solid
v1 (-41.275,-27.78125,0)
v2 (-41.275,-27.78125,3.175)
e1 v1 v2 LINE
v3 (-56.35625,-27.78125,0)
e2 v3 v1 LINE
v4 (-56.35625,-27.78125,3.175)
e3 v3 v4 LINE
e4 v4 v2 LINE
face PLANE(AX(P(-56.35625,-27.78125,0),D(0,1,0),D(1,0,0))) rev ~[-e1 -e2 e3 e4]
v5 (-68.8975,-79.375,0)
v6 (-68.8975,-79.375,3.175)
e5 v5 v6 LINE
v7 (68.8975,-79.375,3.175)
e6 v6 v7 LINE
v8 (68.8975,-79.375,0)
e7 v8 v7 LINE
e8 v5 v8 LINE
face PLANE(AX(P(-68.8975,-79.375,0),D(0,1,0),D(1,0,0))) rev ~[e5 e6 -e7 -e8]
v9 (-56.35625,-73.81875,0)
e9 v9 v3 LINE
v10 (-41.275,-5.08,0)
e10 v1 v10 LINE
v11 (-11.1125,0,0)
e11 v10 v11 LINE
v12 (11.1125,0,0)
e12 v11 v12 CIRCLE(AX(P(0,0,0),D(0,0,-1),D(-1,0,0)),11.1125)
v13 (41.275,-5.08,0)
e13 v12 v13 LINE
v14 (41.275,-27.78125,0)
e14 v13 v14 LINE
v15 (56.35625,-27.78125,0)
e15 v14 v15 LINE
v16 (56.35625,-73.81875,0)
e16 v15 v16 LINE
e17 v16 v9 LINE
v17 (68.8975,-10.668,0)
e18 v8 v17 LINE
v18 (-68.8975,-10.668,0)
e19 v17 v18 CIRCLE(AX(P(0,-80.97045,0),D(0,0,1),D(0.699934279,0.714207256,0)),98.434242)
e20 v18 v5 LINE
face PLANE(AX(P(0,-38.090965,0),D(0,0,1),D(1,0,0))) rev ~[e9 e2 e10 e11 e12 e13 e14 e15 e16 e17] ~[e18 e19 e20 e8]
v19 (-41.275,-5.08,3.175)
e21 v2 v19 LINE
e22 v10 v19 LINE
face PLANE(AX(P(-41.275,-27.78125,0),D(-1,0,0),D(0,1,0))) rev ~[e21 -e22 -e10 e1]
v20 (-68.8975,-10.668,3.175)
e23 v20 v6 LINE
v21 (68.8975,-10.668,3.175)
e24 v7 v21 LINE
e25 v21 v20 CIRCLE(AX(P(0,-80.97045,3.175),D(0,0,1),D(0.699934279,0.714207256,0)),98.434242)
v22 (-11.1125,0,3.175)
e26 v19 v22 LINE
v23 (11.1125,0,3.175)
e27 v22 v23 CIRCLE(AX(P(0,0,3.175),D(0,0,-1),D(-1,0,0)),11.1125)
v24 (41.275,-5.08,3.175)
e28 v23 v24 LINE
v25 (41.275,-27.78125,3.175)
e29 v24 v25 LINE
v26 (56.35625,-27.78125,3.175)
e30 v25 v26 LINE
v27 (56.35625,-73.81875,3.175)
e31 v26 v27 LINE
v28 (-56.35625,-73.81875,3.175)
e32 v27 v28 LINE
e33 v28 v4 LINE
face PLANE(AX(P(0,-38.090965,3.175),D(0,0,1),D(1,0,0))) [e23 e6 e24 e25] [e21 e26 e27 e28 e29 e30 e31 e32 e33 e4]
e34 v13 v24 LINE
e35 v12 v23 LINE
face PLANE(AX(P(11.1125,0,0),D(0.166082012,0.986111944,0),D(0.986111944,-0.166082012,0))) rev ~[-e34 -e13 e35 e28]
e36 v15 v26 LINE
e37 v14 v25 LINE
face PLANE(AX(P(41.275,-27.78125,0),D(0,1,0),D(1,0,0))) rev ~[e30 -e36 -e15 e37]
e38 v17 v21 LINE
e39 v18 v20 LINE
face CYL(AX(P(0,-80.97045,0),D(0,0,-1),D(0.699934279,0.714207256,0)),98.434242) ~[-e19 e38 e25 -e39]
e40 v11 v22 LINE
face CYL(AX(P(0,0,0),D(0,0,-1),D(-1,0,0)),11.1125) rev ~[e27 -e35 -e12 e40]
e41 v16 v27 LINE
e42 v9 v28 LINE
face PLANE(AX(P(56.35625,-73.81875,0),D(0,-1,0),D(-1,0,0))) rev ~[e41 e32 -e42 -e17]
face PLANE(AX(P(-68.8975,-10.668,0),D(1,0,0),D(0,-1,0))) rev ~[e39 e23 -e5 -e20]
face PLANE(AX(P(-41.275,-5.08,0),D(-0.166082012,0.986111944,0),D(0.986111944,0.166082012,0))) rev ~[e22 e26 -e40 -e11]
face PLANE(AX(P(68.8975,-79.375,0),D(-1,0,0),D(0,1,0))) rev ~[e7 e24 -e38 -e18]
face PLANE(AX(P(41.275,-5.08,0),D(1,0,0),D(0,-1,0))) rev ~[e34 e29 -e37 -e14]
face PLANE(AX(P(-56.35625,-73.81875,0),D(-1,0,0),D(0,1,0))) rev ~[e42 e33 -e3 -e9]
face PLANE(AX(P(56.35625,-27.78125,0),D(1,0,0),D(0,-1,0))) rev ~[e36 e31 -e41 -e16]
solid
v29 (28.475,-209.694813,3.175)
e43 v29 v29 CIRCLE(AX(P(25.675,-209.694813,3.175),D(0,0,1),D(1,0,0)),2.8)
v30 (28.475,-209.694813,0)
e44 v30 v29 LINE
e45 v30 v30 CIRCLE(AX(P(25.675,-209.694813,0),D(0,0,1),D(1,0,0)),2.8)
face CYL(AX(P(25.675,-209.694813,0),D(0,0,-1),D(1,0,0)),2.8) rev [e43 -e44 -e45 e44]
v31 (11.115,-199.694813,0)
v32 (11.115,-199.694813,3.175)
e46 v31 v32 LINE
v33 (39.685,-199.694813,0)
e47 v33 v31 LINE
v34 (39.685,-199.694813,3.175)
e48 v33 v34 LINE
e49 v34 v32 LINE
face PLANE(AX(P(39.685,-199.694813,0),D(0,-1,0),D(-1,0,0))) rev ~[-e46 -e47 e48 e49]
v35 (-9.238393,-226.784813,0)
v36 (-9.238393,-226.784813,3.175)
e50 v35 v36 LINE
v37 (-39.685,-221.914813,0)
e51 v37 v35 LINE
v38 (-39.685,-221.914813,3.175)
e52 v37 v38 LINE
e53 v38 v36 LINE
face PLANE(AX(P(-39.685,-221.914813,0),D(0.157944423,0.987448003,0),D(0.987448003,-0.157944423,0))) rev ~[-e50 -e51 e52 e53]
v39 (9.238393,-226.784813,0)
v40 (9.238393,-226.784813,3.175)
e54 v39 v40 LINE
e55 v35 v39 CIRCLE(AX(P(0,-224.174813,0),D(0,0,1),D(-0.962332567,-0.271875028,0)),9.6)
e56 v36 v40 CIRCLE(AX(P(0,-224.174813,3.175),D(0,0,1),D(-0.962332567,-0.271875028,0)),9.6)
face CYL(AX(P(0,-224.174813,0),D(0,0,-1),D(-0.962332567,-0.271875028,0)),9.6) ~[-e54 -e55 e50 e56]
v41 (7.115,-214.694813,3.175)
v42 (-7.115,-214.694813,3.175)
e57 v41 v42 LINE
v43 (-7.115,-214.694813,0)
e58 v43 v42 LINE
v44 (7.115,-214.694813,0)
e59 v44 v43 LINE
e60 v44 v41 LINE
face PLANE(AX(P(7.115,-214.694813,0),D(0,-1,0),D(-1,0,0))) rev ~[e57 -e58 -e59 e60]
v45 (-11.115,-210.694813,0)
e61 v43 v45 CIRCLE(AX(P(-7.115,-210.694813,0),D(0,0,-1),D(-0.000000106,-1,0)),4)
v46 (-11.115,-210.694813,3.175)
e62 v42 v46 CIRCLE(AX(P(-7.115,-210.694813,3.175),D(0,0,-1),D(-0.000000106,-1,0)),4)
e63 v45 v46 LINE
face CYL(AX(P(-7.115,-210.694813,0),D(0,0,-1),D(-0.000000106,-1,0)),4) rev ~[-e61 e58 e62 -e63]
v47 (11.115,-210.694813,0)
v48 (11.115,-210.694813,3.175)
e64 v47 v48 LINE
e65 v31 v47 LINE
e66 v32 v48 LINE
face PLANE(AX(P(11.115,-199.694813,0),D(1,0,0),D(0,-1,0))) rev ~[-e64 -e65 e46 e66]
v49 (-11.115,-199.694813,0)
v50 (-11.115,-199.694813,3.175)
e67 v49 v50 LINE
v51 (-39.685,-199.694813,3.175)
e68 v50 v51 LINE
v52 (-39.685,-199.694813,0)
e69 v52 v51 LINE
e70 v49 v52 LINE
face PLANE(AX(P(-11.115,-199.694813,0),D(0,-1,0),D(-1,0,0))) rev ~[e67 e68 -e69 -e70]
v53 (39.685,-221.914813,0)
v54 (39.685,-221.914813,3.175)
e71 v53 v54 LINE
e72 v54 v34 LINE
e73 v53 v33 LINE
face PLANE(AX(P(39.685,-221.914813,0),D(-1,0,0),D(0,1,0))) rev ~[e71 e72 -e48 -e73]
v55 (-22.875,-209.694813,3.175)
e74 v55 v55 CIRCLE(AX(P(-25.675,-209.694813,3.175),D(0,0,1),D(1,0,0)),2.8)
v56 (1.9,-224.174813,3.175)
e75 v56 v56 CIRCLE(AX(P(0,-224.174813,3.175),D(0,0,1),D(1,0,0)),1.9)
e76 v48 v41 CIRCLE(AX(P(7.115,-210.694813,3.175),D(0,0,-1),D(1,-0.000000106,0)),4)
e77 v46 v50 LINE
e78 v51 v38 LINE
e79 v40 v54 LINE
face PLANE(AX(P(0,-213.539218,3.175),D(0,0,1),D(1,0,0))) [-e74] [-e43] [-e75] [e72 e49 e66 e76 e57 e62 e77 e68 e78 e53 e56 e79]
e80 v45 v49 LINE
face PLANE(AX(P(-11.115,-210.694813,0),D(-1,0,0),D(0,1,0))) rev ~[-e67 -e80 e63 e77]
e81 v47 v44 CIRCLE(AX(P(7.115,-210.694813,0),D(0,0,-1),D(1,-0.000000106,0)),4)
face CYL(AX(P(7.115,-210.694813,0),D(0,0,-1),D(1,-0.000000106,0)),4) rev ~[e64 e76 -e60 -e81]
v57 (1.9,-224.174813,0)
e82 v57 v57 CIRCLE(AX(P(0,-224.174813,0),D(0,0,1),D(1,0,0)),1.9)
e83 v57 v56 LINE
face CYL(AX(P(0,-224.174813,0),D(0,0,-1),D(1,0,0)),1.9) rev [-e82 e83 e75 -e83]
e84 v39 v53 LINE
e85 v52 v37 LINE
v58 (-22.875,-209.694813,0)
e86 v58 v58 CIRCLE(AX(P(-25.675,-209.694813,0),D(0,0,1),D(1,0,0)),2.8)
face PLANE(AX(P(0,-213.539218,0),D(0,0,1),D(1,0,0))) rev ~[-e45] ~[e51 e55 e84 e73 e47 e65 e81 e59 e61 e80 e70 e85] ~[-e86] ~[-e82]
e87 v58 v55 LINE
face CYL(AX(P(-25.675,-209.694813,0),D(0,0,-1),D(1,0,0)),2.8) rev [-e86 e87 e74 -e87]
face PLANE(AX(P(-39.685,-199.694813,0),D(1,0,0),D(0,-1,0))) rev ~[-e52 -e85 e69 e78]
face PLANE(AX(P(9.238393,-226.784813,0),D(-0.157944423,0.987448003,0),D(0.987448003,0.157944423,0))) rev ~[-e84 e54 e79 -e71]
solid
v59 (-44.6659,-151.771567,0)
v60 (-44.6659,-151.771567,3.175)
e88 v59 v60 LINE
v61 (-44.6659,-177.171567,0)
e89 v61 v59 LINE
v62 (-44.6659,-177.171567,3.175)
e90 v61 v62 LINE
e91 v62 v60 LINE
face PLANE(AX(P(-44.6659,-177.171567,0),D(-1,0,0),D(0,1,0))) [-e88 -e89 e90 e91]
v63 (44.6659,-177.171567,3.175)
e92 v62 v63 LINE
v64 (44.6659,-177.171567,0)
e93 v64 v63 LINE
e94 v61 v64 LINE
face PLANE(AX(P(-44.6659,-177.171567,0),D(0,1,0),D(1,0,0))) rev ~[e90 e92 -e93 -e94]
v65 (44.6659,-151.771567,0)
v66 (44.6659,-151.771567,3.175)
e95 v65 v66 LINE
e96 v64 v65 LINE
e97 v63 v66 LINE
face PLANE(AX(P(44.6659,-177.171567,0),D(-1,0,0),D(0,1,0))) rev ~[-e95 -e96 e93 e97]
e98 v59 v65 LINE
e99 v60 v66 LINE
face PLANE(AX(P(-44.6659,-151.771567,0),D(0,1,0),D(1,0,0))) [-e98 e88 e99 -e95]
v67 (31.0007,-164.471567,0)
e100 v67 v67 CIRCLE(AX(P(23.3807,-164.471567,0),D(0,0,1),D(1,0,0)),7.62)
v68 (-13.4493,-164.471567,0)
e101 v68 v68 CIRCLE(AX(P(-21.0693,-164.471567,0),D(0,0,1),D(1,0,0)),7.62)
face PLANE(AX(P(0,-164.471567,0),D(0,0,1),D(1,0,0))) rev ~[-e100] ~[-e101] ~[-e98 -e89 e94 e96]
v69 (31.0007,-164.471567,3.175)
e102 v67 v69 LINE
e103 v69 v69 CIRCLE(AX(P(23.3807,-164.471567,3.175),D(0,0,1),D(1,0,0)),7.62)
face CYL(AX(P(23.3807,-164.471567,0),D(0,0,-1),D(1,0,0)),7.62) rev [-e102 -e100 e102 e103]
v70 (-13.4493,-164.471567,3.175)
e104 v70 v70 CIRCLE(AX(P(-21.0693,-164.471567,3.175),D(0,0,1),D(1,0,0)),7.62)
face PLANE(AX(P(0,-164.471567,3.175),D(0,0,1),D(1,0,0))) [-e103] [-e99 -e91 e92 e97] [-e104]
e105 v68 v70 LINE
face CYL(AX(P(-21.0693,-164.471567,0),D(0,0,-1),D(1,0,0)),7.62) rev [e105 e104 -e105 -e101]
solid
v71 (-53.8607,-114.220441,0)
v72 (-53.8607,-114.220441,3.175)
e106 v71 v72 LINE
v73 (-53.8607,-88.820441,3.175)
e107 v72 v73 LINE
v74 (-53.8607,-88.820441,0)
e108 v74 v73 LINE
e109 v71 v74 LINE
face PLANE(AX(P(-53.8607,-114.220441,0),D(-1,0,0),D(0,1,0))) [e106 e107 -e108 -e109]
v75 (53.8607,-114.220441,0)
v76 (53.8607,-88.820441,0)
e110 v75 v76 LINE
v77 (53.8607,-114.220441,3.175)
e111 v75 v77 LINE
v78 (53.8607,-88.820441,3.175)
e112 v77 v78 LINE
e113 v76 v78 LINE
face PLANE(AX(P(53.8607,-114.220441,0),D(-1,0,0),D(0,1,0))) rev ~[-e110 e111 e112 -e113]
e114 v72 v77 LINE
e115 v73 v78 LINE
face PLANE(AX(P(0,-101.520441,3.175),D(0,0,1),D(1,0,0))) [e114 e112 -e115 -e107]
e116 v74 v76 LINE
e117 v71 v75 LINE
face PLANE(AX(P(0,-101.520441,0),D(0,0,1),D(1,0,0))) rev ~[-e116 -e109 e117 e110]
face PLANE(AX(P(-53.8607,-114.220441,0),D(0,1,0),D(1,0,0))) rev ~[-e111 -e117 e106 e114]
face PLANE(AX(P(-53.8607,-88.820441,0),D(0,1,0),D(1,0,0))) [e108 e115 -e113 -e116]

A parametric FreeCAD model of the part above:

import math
import FreeCAD as App
import Part
import Sketcher
Q = App.Units.Quantity


def add_polygon(sketch, points):
    """Adds a closed chain of lines whose ends are joined by coincident constraints."""
    first, n = sketch.GeometryCount, len(points)
    for a, b in zip(points, points[1:] + points[:1]):
        sketch.addGeometry(Part.LineSegment(App.Vector(*a, 0), App.Vector(*b, 0)), False)
    for i in range(n):
        sketch.addConstraint(Sketcher.Constraint("Coincident", first + i, 2, first + (i + 1) % n, 1))

doc = App.newDocument("Part")
body = doc.addObject("PartDesign::Body", "Body")
body.AllowCompound = True

# Sketch on XY plane
sketch1 = doc.addObject("Sketcher::SketchObject", "Sketch")
body.addObject(sketch1)
sketch1.AttachmentSupport = (doc.XY_Plane, [""])
sketch1.MapMode = "FlatFace"
sketch1.addGeometry(Part.LineSegment(App.Vector(-68.8975, -79.375, 0), App.Vector(68.8975, -79.375, 0)), False)  # 0
sketch1.addGeometry(Part.LineSegment(App.Vector(68.8975, -79.375, 0), App.Vector(68.8975, -10.668, 0)), False)  # 1
sketch1.addGeometry(Part.ArcOfCircle(Part.Circle(App.Vector(0, -80.97045, 0), App.Vector(0, 0, 1), 98.434242), math.radians(45.578269), math.radians(134.421731)), False)  # 2
sketch1.addGeometry(Part.LineSegment(App.Vector(-68.8975, -10.668, 0), App.Vector(-68.8975, -79.375, 0)), False)  # 3
sketch1.addGeometry(Part.LineSegment(App.Vector(-41.275, -5.08, 0), App.Vector(-11.1125, 0, 0)), False)  # 4
sketch1.addGeometry(Part.ArcOfCircle(Part.Circle(App.Vector(0, 0, 0), App.Vector(0, 0, 1), 11.1125), math.radians(0), math.radians(180)), False)  # 5
sketch1.addGeometry(Part.LineSegment(App.Vector(11.1125, 0, 0), App.Vector(41.275, -5.08, 0)), False)  # 6
sketch1.addGeometry(Part.LineSegment(App.Vector(41.275, -5.08, 0), App.Vector(41.275, -27.78125, 0)), False)  # 7
sketch1.addGeometry(Part.LineSegment(App.Vector(41.275, -27.78125, 0), App.Vector(56.35625, -27.78125, 0)), False)  # 8
sketch1.addGeometry(Part.LineSegment(App.Vector(56.35625, -27.78125, 0), App.Vector(56.35625, -73.81875, 0)), False)  # 9
sketch1.addGeometry(Part.LineSegment(App.Vector(56.35625, -73.81875, 0), App.Vector(-56.35625, -73.81875, 0)), False)  # 10
sketch1.addGeometry(Part.LineSegment(App.Vector(-56.35625, -73.81875, 0), App.Vector(-56.35625, -27.78125, 0)), False)  # 11
sketch1.addGeometry(Part.LineSegment(App.Vector(-56.35625, -27.78125, 0), App.Vector(-41.275, -27.78125, 0)), False)  # 12
sketch1.addGeometry(Part.LineSegment(App.Vector(-41.275, -27.78125, 0), App.Vector(-41.275, -5.08, 0)), False)  # 13
add_polygon(sketch1, [(-53.8607, -88.820441), (-53.8607, -114.220441), (53.8607, -114.220441), (53.8607, -88.820441)])  # lines 14-17
add_polygon(sketch1, [(-44.6659, -151.771567), (-44.6659, -177.171567), (44.6659, -177.171567), (44.6659, -151.771567)])  # lines 18-21
sketch1.addGeometry(Part.Circle(App.Vector(-21.0693, -164.471567, 0), App.Vector(0, 0, 1), 7.62), False)  # 22
sketch1.addGeometry(Part.Circle(App.Vector(23.3807, -164.471567, 0), App.Vector(0, 0, 1), 7.62), False)  # 23
sketch1.addGeometry(Part.LineSegment(App.Vector(39.685, -221.914813, 0), App.Vector(39.685, -199.694813, 0)), False)  # 24
sketch1.addGeometry(Part.LineSegment(App.Vector(39.685, -199.694813, 0), App.Vector(11.115, -199.694813, 0)), False)  # 25
sketch1.addGeometry(Part.LineSegment(App.Vector(11.115, -199.694813, 0), App.Vector(11.115, -210.694813, 0)), False)  # 26
sketch1.addGeometry(Part.ArcOfCircle(Part.Circle(App.Vector(7.115, -210.694813, 0), App.Vector(0, 0, 1), 4), math.radians(-89.999994), math.radians(-0.000006)), False)  # 27
sketch1.addGeometry(Part.LineSegment(App.Vector(7.115, -214.694813, 0), App.Vector(-7.115, -214.694813, 0)), False)  # 28
sketch1.addGeometry(Part.ArcOfCircle(Part.Circle(App.Vector(-7.115, -210.694813, 0), App.Vector(0, 0, 1), 4), math.radians(-179.999994), math.radians(-90.000006)), False)  # 29
sketch1.addGeometry(Part.LineSegment(App.Vector(-11.115, -210.694813, 0), App.Vector(-11.115, -199.694813, 0)), False)  # 30
sketch1.addGeometry(Part.LineSegment(App.Vector(-11.115, -199.694813, 0), App.Vector(-39.685, -199.694813, 0)), False)  # 31
sketch1.addGeometry(Part.LineSegment(App.Vector(-39.685, -199.694813, 0), App.Vector(-39.685, -221.914813, 0)), False)  # 32
sketch1.addGeometry(Part.LineSegment(App.Vector(-39.685, -221.914813, 0), App.Vector(-9.238393, -226.784813, 0)), False)  # 33
sketch1.addGeometry(Part.ArcOfCircle(Part.Circle(App.Vector(0, -224.174813, 0), App.Vector(0, 0, 1), 9.6), math.radians(-164.224128), math.radians(-15.775872)), False)  # 34
sketch1.addGeometry(Part.LineSegment(App.Vector(9.238393, -226.784813, 0), App.Vector(39.685, -221.914813, 0)), False)  # 35
sketch1.addGeometry(Part.Circle(App.Vector(0, -224.174813, 0), App.Vector(0, 0, 1), 1.9), False)  # 36
sketch1.addGeometry(Part.Circle(App.Vector(-25.675, -209.694813, 0), App.Vector(0, 0, 1), 2.8), False)  # 37
sketch1.addGeometry(Part.Circle(App.Vector(25.675, -209.694813, 0), App.Vector(0, 0, 1), 2.8), False)  # 38
sketch1.addConstraint([
    Sketcher.Constraint("Coincident", 0, 2, 1, 1),
    Sketcher.Constraint("Coincident", 1, 2, 2, 1),
    Sketcher.Constraint("Coincident", 2, 2, 3, 1),
    Sketcher.Constraint("Coincident", 3, 2, 0, 1),
    Sketcher.Constraint("Coincident", 4, 2, 5, 2),
    Sketcher.Constraint("Coincident", 5, 1, 6, 1),
    Sketcher.Constraint("Coincident", 6, 2, 7, 1),
    Sketcher.Constraint("Coincident", 7, 2, 8, 1),
    Sketcher.Constraint("Coincident", 8, 2, 9, 1),
    Sketcher.Constraint("Coincident", 9, 2, 10, 1),
    Sketcher.Constraint("Coincident", 10, 2, 11, 1),
    Sketcher.Constraint("Coincident", 11, 2, 12, 1),
    Sketcher.Constraint("Coincident", 12, 2, 13, 1),
    Sketcher.Constraint("Coincident", 13, 2, 4, 1),
    Sketcher.Constraint("Coincident", 24, 2, 25, 1),
    Sketcher.Constraint("Coincident", 25, 2, 26, 1),
    Sketcher.Constraint("Tangent", 26, 2, 27, 2),
    Sketcher.Constraint("Tangent", 27, 1, 28, 1),
    Sketcher.Constraint("Tangent", 28, 2, 29, 2),
    Sketcher.Constraint("Tangent", 29, 1, 30, 1),
    Sketcher.Constraint("Coincident", 30, 2, 31, 1),
    Sketcher.Constraint("Coincident", 31, 2, 32, 1),
    Sketcher.Constraint("Coincident", 32, 2, 33, 1),
    Sketcher.Constraint("Coincident", 33, 2, 34, 1),
    Sketcher.Constraint("Coincident", 34, 2, 35, 1),
    Sketcher.Constraint("Coincident", 35, 2, 24, 1),
    Sketcher.Constraint("Horizontal", 0),
    Sketcher.Constraint("Vertical", 1),
    Sketcher.Constraint("Vertical", 3),
    Sketcher.Constraint("Vertical", 7),
    Sketcher.Constraint("Horizontal", 8),
    Sketcher.Constraint("Vertical", 9),
    Sketcher.Constraint("Horizontal", 10),
    Sketcher.Constraint("Vertical", 11),
    Sketcher.Constraint("Horizontal", 12),
    Sketcher.Constraint("Vertical", 13),
    Sketcher.Constraint("Vertical", 14),
    Sketcher.Constraint("Horizontal", 15),
    Sketcher.Constraint("Vertical", 16),
    Sketcher.Constraint("Horizontal", 17),
    Sketcher.Constraint("Vertical", 18),
    Sketcher.Constraint("Horizontal", 19),
    Sketcher.Constraint("Vertical", 20),
    Sketcher.Constraint("Horizontal", 21),
    Sketcher.Constraint("Vertical", 24),
    Sketcher.Constraint("Horizontal", 25),
    Sketcher.Constraint("Vertical", 26),
    Sketcher.Constraint("Horizontal", 28),
    Sketcher.Constraint("Vertical", 30),
    Sketcher.Constraint("Horizontal", 31),
    Sketcher.Constraint("Vertical", 32),
    Sketcher.Constraint("Coincident", 5, 3, -1, 1),
    Sketcher.Constraint("Coincident", 36, 3, 34, 3),
    Sketcher.Constraint("Equal", 22, 23),
    Sketcher.Constraint("Equal", 27, 29),
    Sketcher.Constraint("Equal", 37, 38),
    Sketcher.Constraint("Symmetric", 37, 3, 38, 3, -2),
    Sketcher.Constraint("Symmetric", 1, 2, 2, 2, -2),
    Sketcher.Constraint("Symmetric", 8, 2, 11, 2, -2),
    Sketcher.Constraint("Symmetric", 6, 2, 13, 2, -2),
    Sketcher.Constraint("Symmetric", 25, 2, 30, 2, -2),
    Sketcher.Constraint("Symmetric", 33, 2, 34, 2, -2),
    Sketcher.Constraint("Symmetric", 32, 2, 35, 2, -2),
    Sketcher.Constraint("PointOnObject", 4, 2, -1),
    Sketcher.Constraint("PointOnObject", 5, 1, -1),
    Sketcher.Constraint("Horizontal", 22, 3, 23, 3),
    Sketcher.Constraint("Equal", 16, 18),
    Sketcher.Constraint("Diameter", 22, Q("0.6 in")),
    Sketcher.Constraint("DistanceY", 14, 2, 14, 1, Q("1 in")),
    Sketcher.Constraint("Radius", 5, Q("0.4375 in")),
    Sketcher.Constraint("DistanceY", 6, 2, -1, 1, Q("0.2 in")),
    Sketcher.Constraint("DistanceX", 23, 3, 15, 2, Q("1.2 in")),
    Sketcher.Constraint("DistanceY", 18, 2, 22, 3, Q("0.5 in")),
    Sketcher.Constraint("Diameter", 36, 3.8),
    Sketcher.Constraint("Diameter", 37, 5.6),
    Sketcher.Constraint("DistanceX", 0, 1, 0, 2, Q("5.425 in")),
    Sketcher.Constraint("DistanceX", 8, 1, 8, 2, Q("0.59375 in")),
    Sketcher.Constraint("DistanceX", 10, 2, 10, 1, Q("4.4375 in")),
    Sketcher.Constraint("DistanceX", 15, 1, 15, 2, Q("4.241 in")),
    Sketcher.Constraint("DistanceX", 19, 1, 19, 2, Q("3.517 in")),
    Sketcher.Constraint("DistanceY", 1, 1, 1, 2, Q("2.705 in")),
    Sketcher.Constraint("DistanceY", 9, 2, 9, 1, Q("1.8125 in")),
    Sketcher.Constraint("DistanceY", 1, 2, -1, 1, Q("0.42 in")),
    Sketcher.Constraint("Radius", 27, 4.0),
    Sketcher.Constraint("Radius", 34, 9.6),
    Sketcher.Constraint("DistanceX", 22, 3, 23, 3, Q("1.75 in")),
    Sketcher.Constraint("DistanceY", 7, 2, -1, 1, Q("1.09375 in")),
    Sketcher.Constraint("Radius", 2, 98.434242),
    Sketcher.Constraint("DistanceX", 23, 3, 0, 2, Q("1.792 in")),
    Sketcher.Constraint("DistanceX", 18, 2, 22, 3, Q("0.929 in")),
    Sketcher.Constraint("DistanceX", 25, 2, 25, 1, 28.57),
    Sketcher.Constraint("DistanceX", 28, 2, 28, 1, 14.23),
    Sketcher.Constraint("DistanceY", 24, 1, 24, 2, 22.22),
    Sketcher.Constraint("DistanceY", 26, 2, 26, 1, 11.0),
    Sketcher.Constraint("DistanceX", 37, 3, -1, 1, 25.675),
    Sketcher.Constraint("DistanceY", 34, 3, 27, 3, 13.48),
    Sketcher.Constraint("DistanceY", 29, 3, 37, 3, 1.0),
    Sketcher.Constraint("DistanceY", 33, 2, 36, 3, 2.61),
    Sketcher.Constraint("DistanceY", 14, 2, -1, 1, 114.220441),
    Sketcher.Constraint("DistanceY", 22, 3, -1, 1, 164.471567),
    Sketcher.Constraint("DistanceY", 27, 3, -1, 1, 210.694813),
])
pad1 = doc.addObject("PartDesign::Pad", "Pad")
body.addObject(pad1)
pad1.Profile = sketch1
pad1.Length = Q("0.125 in")

doc.recompute()
